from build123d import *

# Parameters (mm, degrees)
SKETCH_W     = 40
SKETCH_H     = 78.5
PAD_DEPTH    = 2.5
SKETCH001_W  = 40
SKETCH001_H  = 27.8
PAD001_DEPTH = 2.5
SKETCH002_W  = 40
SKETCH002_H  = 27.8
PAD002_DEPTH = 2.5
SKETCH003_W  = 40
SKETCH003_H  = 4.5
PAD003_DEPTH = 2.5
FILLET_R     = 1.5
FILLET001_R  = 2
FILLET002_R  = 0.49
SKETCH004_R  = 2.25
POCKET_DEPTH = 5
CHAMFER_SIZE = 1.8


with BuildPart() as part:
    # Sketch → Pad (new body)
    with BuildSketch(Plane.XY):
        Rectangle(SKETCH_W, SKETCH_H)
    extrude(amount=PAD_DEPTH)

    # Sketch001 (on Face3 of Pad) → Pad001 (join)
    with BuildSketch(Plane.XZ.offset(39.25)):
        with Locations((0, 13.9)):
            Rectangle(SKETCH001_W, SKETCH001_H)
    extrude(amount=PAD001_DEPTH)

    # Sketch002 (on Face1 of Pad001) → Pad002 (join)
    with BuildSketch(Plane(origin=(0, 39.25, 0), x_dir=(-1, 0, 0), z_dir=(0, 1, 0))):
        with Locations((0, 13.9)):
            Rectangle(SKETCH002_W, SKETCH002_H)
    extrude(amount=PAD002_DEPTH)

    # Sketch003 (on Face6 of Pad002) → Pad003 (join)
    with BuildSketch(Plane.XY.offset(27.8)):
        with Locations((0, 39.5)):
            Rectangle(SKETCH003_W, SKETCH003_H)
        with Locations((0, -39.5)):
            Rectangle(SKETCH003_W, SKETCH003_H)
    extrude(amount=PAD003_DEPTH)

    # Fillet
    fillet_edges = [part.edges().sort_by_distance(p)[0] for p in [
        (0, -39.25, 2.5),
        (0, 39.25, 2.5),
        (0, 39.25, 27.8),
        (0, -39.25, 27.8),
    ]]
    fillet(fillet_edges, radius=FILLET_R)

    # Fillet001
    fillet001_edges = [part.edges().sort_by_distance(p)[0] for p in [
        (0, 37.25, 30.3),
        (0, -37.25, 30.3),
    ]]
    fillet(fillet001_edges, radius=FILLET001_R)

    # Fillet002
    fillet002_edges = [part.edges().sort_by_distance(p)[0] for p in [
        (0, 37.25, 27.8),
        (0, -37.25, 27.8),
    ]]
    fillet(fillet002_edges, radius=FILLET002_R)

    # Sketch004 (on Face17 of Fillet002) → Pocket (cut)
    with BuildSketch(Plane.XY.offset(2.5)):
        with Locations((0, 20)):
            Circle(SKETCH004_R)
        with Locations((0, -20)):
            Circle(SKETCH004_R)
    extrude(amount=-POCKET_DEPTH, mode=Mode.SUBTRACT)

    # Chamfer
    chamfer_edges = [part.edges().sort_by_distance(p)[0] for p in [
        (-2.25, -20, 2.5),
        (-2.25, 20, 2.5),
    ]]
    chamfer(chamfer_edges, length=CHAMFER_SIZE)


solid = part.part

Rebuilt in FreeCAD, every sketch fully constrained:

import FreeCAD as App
import Part
import Sketcher


def edges_at(feature, points):
    """Names of the edges that pass closest to the given points."""
    edges = feature.Shape.Edges
    near = lambda p: min(range(len(edges)), key=lambda i: edges[i].distToShape(Part.Vertex(*p))[0])
    return sorted({f"Edge{near(p) + 1}" for p in points})


def add_polygon(sketch, points):
    """Adds a closed chain of lines whose ends are joined by coincident constraints."""
    first, n = sketch.GeometryCount, len(points)
    for a, b in zip(points, points[1:] + points[:1]):
        sketch.addGeometry(Part.LineSegment(App.Vector(*a, 0), App.Vector(*b, 0)), False)
    for i in range(n):
        sketch.addConstraint(Sketcher.Constraint("Coincident", first + i, 2, first + (i + 1) % n, 1))

doc = App.newDocument("Part")
body = doc.addObject("PartDesign::Body", "Body")

# Sketch on XY plane
sketch1 = body.newObject("Sketcher::SketchObject", "Sketch")
sketch1.AttachmentSupport = (doc.getObject("XY_Plane"), [""])
sketch1.MapMode = "FlatFace"
add_polygon(sketch1, [(-20, 39.25), (-20, -39.25), (20, -39.25), (20, 39.25)])  # lines 0-3
sketch1.addConstraint([
    Sketcher.Constraint("Vertical", 0),
    Sketcher.Constraint("Horizontal", 1),
    Sketcher.Constraint("Vertical", 2),
    Sketcher.Constraint("Horizontal", 3),
    Sketcher.Constraint("Symmetric", 0, 2, 2, 2, -1, 1),
    Sketcher.Constraint("DistanceX", 1, 1, 1, 2, 40.0),
    Sketcher.Constraint("DistanceY", 0, 2, 0, 1, 78.5),
])
pad1 = body.newObject("PartDesign::Pad", "Pad")
pad1.Profile = sketch1
pad1.Length = 2.5

# Sketch on XZ plane
sketch2 = body.newObject("Sketcher::SketchObject", "Sketch001")
sketch2.AttachmentSupport = (doc.getObject("XZ_Plane"), [""])
sketch2.MapMode = "FlatFace"
sketch2.AttachmentOffset = App.Placement(App.Vector(0, 0, 39.25), App.Rotation())
add_polygon(sketch2, [(-20, 27.8), (-20, 0), (20, 0), (20, 27.8)])  # lines 0-3
sketch2.addConstraint([
    Sketcher.Constraint("Vertical", 0),
    Sketcher.Constraint("Horizontal", 1),
    Sketcher.Constraint("Vertical", 2),
    Sketcher.Constraint("Horizontal", 3),
    Sketcher.Constraint("Symmetric", 0, 2, 1, 2, -1, 1),
    Sketcher.Constraint("DistanceX", 1, 1, 1, 2, 40.0),
    Sketcher.Constraint("DistanceY", 0, 2, 0, 1, 27.8),
])
pad2 = body.newObject("PartDesign::Pad", "Pad001")
pad2.Profile = sketch2
pad2.Length = 2.5

# Sketch on XZ plane
sketch3 = body.newObject("Sketcher::SketchObject", "Sketch002")
sketch3.AttachmentSupport = (doc.getObject("XZ_Plane"), [""])
sketch3.MapMode = "FlatFace"
sketch3.AttachmentOffset = App.Placement(App.Vector(0, 0, -39.25), App.Rotation())
add_polygon(sketch3, [(20, 27.8), (20, 0), (-20, 0), (-20, 27.8)])  # lines 0-3
sketch3.addConstraint([
    Sketcher.Constraint("Vertical", 0),
    Sketcher.Constraint("Horizontal", 1),
    Sketcher.Constraint("Vertical", 2),
    Sketcher.Constraint("Horizontal", 3),
    Sketcher.Constraint("Symmetric", 0, 2, 1, 2, -1, 1),
    Sketcher.Constraint("DistanceX", 1, 2, 1, 1, 40.0),
    Sketcher.Constraint("DistanceY", 0, 2, 0, 1, 27.8),
])
pad3 = body.newObject("PartDesign::Pad", "Pad002")
pad3.Profile = sketch3
pad3.Length = 2.5
pad3.Reversed = True

# Sketch on XY plane
sketch4 = body.newObject("Sketcher::SketchObject", "Sketch003")
sketch4.AttachmentSupport = (doc.getObject("XY_Plane"), [""])
sketch4.MapMode = "FlatFace"
sketch4.AttachmentOffset = App.Placement(App.Vector(0, 0, 27.8), App.Rotation())
add_polygon(sketch4, [(-20, 41.75), (-20, 37.25), (20, 37.25), (20, 41.75)])  # lines 0-3
add_polygon(sketch4, [(-20, -37.25), (-20, -41.75), (20, -41.75), (20, -37.25)])  # lines 4-7
sketch4.addConstraint([
    Sketcher.Constraint("Vertical", 0),
    Sketcher.Constraint("Horizontal", 1),
    Sketcher.Constraint("Vertical", 2),
    Sketcher.Constraint("Horizontal", 3),
    Sketcher.Constraint("Vertical", 4),
    Sketcher.Constraint("Horizontal", 5),
    Sketcher.Constraint("Vertical", 6),
    Sketcher.Constraint("Horizontal", 7),
    Sketcher.Constraint("Symmetric", 2, 2, 4, 2, -1, 1),
    Sketcher.Constraint("Symmetric", 0, 2, 6, 2, -1, 1),
    Sketcher.Constraint("Vertical", 3, 2, 4, 2),
    Sketcher.Constraint("DistanceX", 1, 1, 1, 2, 40.0),
    Sketcher.Constraint("DistanceY", 0, 2, 0, 1, 4.5),
    Sketcher.Constraint("DistanceY", 4, 2, 0, 2, 79.0),
])
pad4 = body.newObject("PartDesign::Pad", "Pad003")
pad4.Profile = sketch4
pad4.Length = 2.5
doc.recompute()

fillet = body.newObject("PartDesign::Fillet", "Fillet")
fillet.Base = (pad4, edges_at(pad4, [
    (0, -39.25, 2.5),
    (0, 39.25, 2.5),
    (0, 39.25, 27.8),
    (0, -39.25, 27.8),
]))
fillet.Radius = 1.5
doc.recompute()

fillet2 = body.newObject("PartDesign::Fillet", "Fillet001")
fillet2.Base = (fillet, edges_at(fillet, [(0, 37.25, 30.3), (0, -37.25, 30.3)]))
fillet2.Radius = 2
doc.recompute()

fillet3 = body.newObject("PartDesign::Fillet", "Fillet002")
fillet3.Base = (fillet2, edges_at(fillet2, [(0, 37.25, 27.8), (0, -37.25, 27.8)]))
fillet3.Radius = 0.49

# Sketch on XY plane
sketch5 = body.newObject("Sketcher::SketchObject", "Sketch004")
sketch5.AttachmentSupport = (doc.getObject("XY_Plane"), [""])
sketch5.MapMode = "FlatFace"
sketch5.AttachmentOffset = App.Placement(App.Vector(0, 0, 2.5), App.Rotation())
sketch5.addGeometry([
    Part.Circle(App.Vector(0, 20, 0), App.Vector(0, 0, 1), 2.25),
    Part.Circle(App.Vector(0, -20, 0), App.Vector(0, 0, 1), 2.25),
], False)
sketch5.addConstraint([
    Sketcher.Constraint("Equal", 0, 1),
    Sketcher.Constraint("Symmetric", 0, 3, 1, 3, -1, 1),
    Sketcher.Constraint("PointOnObject", 0, 3, -2),
    Sketcher.Constraint("Diameter", 0, 4.5),
    Sketcher.Constraint("DistanceY", -1, 1, 0, 3, 20.0),
])
pocket1 = body.newObject("PartDesign::Pocket", "Pocket")
pocket1.Profile = sketch5
pocket1.Length = 5
doc.recompute()

chamfer = body.newObject("PartDesign::Chamfer", "Chamfer")
chamfer.Base = (pocket1, edges_at(pocket1, [(-2.25, -20, 2.5), (-2.25, 20, 2.5)]))
chamfer.Size = 1.8

doc.recompute()
